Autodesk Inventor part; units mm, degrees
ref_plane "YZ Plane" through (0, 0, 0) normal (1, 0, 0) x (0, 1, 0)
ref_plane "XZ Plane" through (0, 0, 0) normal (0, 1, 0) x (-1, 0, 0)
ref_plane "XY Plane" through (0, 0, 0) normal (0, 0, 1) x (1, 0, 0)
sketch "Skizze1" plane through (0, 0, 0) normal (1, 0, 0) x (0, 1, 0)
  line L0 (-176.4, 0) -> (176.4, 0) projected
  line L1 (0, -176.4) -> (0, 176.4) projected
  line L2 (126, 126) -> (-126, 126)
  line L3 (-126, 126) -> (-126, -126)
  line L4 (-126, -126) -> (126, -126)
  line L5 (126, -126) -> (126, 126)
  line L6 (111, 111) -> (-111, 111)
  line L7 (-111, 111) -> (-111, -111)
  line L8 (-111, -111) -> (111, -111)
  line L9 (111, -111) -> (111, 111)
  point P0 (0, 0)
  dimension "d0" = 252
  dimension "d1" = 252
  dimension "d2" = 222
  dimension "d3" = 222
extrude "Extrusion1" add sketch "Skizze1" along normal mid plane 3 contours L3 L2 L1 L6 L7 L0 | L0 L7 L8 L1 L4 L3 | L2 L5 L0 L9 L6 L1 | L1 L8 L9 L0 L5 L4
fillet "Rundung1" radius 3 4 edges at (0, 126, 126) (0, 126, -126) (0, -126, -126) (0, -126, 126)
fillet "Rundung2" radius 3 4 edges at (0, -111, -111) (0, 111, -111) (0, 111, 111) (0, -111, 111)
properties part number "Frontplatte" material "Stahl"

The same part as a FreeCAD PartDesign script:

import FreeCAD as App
import Part
import Sketcher

V = App.Vector


def edges_at(feature, points):
    """Names of the edges that pass closest to the given points."""
    edges = feature.Shape.Edges
    near = lambda p: min(range(len(edges)), key=lambda i: edges[i].distToShape(Part.Vertex(*p))[0])
    return sorted({f"Edge{near(p) + 1}" for p in points})

doc = App.newDocument("Part")
body = doc.addObject("PartDesign::Body", "Body")

# Sketch on YZ plane
sketch1 = body.newObject("Sketcher::SketchObject", "Sketch")
sketch1.AttachmentSupport = (doc.getObject("YZ_Plane"), [""])
sketch1.MapMode = "FlatFace"
sketch1.addGeometry(Part.LineSegment(V(-126, 126, 0), V(-126, -126, 0)), False)
sketch1.addGeometry(Part.LineSegment(V(-126, -126, 0), V(126, -126, 0)), False)
sketch1.addGeometry(Part.LineSegment(V(126, -126, 0), V(126, 126, 0)), False)
sketch1.addGeometry(Part.LineSegment(V(126, 126, 0), V(-126, 126, 0)), False)
sketch1.addGeometry(Part.LineSegment(V(-111, 111, 0), V(111, 111, 0)), False)
sketch1.addGeometry(Part.LineSegment(V(111, 111, 0), V(111, -111, 0)), False)
sketch1.addGeometry(Part.LineSegment(V(111, -111, 0), V(-111, -111, 0)), False)
sketch1.addGeometry(Part.LineSegment(V(-111, -111, 0), V(-111, 111, 0)), False)
sketch1.addConstraint(Sketcher.Constraint("Coincident", 0, 2, 1, 1))
sketch1.addConstraint(Sketcher.Constraint("Coincident", 1, 2, 2, 1))
sketch1.addConstraint(Sketcher.Constraint("Coincident", 2, 2, 3, 1))
sketch1.addConstraint(Sketcher.Constraint("Coincident", 3, 2, 0, 1))
sketch1.addConstraint(Sketcher.Constraint("Coincident", 4, 2, 5, 1))
sketch1.addConstraint(Sketcher.Constraint("Coincident", 5, 2, 6, 1))
sketch1.addConstraint(Sketcher.Constraint("Coincident", 6, 2, 7, 1))
sketch1.addConstraint(Sketcher.Constraint("Coincident", 7, 2, 4, 1))
sketch1.addConstraint(Sketcher.Constraint("Vertical", 0))
sketch1.addConstraint(Sketcher.Constraint("Horizontal", 1))
sketch1.addConstraint(Sketcher.Constraint("Vertical", 2))
sketch1.addConstraint(Sketcher.Constraint("Horizontal", 3))
sketch1.addConstraint(Sketcher.Constraint("Horizontal", 4))
sketch1.addConstraint(Sketcher.Constraint("Vertical", 5))
sketch1.addConstraint(Sketcher.Constraint("Horizontal", 6))
sketch1.addConstraint(Sketcher.Constraint("Vertical", 7))
sketch1.addConstraint(Sketcher.Constraint("Symmetric", 0, 2, 2, 2, -1, 1))
sketch1.addConstraint(Sketcher.Constraint("Symmetric", 4, 2, 6, 2, -1, 1))
sketch1.addConstraint(Sketcher.Constraint("Equal", 3, 0))
sketch1.addConstraint(Sketcher.Constraint("Equal", 6, 5))
sketch1.addConstraint(Sketcher.Constraint("DistanceX", 1, 1, 1, 2, 252.0))
sketch1.addConstraint(Sketcher.Constraint("DistanceX", 4, 1, 4, 2, 222.0))
pad1 = body.newObject("PartDesign::Pad", "Pad")
pad1.Profile = sketch1
pad1.Length = 3
pad1.Midplane = True
doc.recompute()

fillet = body.newObject("PartDesign::Fillet", "Fillet")
fillet.Base = (pad1, edges_at(pad1, [
    (0, 126, 126),
    (0, 126, -126),
    (0, -126, -126),
    (0, -126, 126),
]))
fillet.Radius = 3
doc.recompute()

fillet2 = body.newObject("PartDesign::Fillet", "Fillet001")
fillet2.Base = (fillet, edges_at(fillet, [
    (0, -111, -111),
    (0, 111, -111),
    (0, 111, 111),
    (0, -111, 111),
]))
fillet2.Radius = 3

doc.recompute()
